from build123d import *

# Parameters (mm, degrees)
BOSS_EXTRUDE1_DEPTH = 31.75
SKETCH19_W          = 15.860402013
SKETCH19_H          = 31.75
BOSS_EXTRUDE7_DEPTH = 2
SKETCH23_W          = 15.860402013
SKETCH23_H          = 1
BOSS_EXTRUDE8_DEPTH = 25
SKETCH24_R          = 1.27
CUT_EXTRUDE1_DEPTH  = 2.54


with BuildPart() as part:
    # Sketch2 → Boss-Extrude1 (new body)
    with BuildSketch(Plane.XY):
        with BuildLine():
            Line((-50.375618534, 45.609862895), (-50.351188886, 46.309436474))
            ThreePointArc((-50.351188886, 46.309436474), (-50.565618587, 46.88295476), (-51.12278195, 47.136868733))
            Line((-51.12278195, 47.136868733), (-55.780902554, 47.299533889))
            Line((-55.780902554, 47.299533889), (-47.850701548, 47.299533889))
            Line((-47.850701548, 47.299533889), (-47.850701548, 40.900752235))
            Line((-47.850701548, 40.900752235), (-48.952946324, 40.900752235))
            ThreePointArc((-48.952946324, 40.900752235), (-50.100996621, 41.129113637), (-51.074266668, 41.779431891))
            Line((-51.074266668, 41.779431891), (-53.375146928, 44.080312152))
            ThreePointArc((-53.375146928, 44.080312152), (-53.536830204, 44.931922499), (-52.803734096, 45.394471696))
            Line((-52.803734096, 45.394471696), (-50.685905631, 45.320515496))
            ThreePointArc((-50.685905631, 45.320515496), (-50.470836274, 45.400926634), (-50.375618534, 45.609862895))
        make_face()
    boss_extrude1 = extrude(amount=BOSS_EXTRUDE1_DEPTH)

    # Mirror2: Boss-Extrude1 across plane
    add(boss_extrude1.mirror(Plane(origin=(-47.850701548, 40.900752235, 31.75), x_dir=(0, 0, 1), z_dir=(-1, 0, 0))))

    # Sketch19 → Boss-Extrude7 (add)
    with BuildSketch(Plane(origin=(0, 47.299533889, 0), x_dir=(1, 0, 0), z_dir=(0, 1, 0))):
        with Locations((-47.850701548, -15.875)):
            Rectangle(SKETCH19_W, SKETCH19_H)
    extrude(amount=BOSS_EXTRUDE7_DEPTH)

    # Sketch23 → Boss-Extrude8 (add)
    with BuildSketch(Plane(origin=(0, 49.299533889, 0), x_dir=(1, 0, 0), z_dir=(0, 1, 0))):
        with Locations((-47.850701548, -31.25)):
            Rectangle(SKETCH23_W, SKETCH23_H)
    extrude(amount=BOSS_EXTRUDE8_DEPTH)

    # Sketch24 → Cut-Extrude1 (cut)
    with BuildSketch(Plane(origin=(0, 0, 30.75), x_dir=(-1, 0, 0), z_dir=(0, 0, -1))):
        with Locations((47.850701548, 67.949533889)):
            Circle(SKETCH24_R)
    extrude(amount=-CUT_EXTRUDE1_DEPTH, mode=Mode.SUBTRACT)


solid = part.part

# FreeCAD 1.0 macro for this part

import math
import FreeCAD as App
import Part
import Sketcher

V = App.Vector
Q = App.Units.Quantity


def add_polygon(sketch, points):
    """Adds a closed chain of lines whose ends are joined by coincident constraints."""
    first, n = sketch.GeometryCount, len(points)
    for a, b in zip(points, points[1:] + points[:1]):
        sketch.addGeometry(Part.LineSegment(App.Vector(*a, 0), App.Vector(*b, 0)), False)
    for i in range(n):
        sketch.addConstraint(Sketcher.Constraint("Coincident", first + i, 2, first + (i + 1) % n, 1))

doc = App.newDocument("Part")
params = doc.addObject("Spreadsheet::Sheet", "Params")
for row, (alias, value) in enumerate([
    ("sketch1_radius", "3 mm"),
    ("sketch1_radius2", "0.3 mm"),
    ("sketch1_radius3", "0.8 mm"),
    ("sketch1_length", "0.7 mm"),
    ("pad1_length", "31.75 mm"),
    ("sketch2_height", "31.75 mm"),
    ("pad2_length", "2 mm"),
    ("sketch3_height", "1 mm"),
    ("pad3_length", "25 mm"),
    ("sketch4_diameter", "2.54 mm"),
    ("pocket1_length", "2.54 mm"),
], start=1):
    params.set(f"A{row}", alias)
    params.set(f"B{row}", "=" + value)
    params.setAlias(f"B{row}", alias)

body = doc.addObject("PartDesign::Body", "Body")

sketch1 = doc.addObject("Sketcher::SketchObject", "Sketch")
body.addObject(sketch1)
sketch1.AttachmentSupport = (doc.XY_Plane, [""])
sketch1.MapMode = "FlatFace"
sketch1.addGeometry(Part.LineSegment(V(-50.35, 46.31, 0), V(-50.38, 45.61, 0)), False)
sketch1.addGeometry(Part.ArcOfCircle(Part.Circle(V(-50.68, 45.62, 0), V(0, 0, 1), 0.3), math.radians(-92), math.radians(-2)), False)
sketch1.addGeometry(Part.LineSegment(V(-50.69, 45.32, 0), V(-52.8, 45.39, 0)), False)
sketch1.addGeometry(Part.ArcOfCircle(Part.Circle(V(-52.83, 44.62, 0), V(0, 0, 1), 0.77), math.radians(88), math.radians(225)), False)
sketch1.addGeometry(Part.LineSegment(V(-53.38, 44.08, 0), V(-51.07, 41.78, 0)), False)
sketch1.addGeometry(Part.ArcOfCircle(Part.Circle(V(-48.95, 43.9, 0), V(0, 0, 1), 3), math.radians(-135), math.radians(-90)), False)
sketch1.addGeometry(Part.LineSegment(V(-48.95, 40.9, 0), V(-47.85, 40.9, 0)), False)
sketch1.addGeometry(Part.LineSegment(V(-47.85, 40.9, 0), V(-47.85, 47.3, 0)), False)
sketch1.addGeometry(Part.LineSegment(V(-47.85, 47.3, 0), V(-55.78, 47.3, 0)), False)
sketch1.addGeometry(Part.LineSegment(V(-55.78, 47.3, 0), V(-51.12, 47.14, 0)), False)
sketch1.addGeometry(Part.ArcOfCircle(Part.Circle(V(-51.15, 46.34, 0), V(0, 0, 1), 0.8), math.radians(-2), math.radians(88)), False)
sketch1.addConstraint(Sketcher.Constraint("Tangent", 0, 2, 1, 2))
sketch1.addConstraint(Sketcher.Constraint("Tangent", 1, 1, 2, 1))
sketch1.addConstraint(Sketcher.Constraint("Tangent", 2, 2, 3, 1))
sketch1.addConstraint(Sketcher.Constraint("Tangent", 3, 2, 4, 1))
sketch1.addConstraint(Sketcher.Constraint("Tangent", 4, 2, 5, 1))
sketch1.addConstraint(Sketcher.Constraint("Tangent", 5, 2, 6, 1))
sketch1.addConstraint(Sketcher.Constraint("Coincident", 6, 2, 7, 1))
sketch1.addConstraint(Sketcher.Constraint("Coincident", 7, 2, 8, 1))
sketch1.addConstraint(Sketcher.Constraint("Coincident", 8, 2, 9, 1))
sketch1.addConstraint(Sketcher.Constraint("Tangent", 9, 2, 10, 2))
sketch1.addConstraint(Sketcher.Constraint("Tangent", 10, 1, 0, 1))
sketch1.addConstraint(Sketcher.Constraint("Horizontal", 6))
sketch1.addConstraint(Sketcher.Constraint("Vertical", 7))
sketch1.addConstraint(Sketcher.Constraint("Horizontal", 8))
sketch1.addConstraint(Sketcher.Constraint("Perpendicular", 0, 2))
sketch1.addConstraint(Sketcher.Constraint("Parallel", 2, 9))
sketch1.addConstraint(Sketcher.Constraint("Radius", 5, 3.0))
sketch1.addConstraint(Sketcher.Constraint("Radius", 1, 0.3))
sketch1.addConstraint(Sketcher.Constraint("Radius", 10, 0.8))
sketch1.addConstraint(Sketcher.Constraint("Angle", 0, Q("-92 deg")))
sketch1.addConstraint(Sketcher.Constraint("Angle", 4, Q("-45 deg")))
sketch1.addConstraint(Sketcher.Constraint("Distance", 0, 0.7))
sketch1.addConstraint(Sketcher.Constraint("DistanceX", 10, 3, 7, 2, 3.3))
sketch1.addConstraint(Sketcher.Constraint("Radius", 3, 0.770092))
sketch1.addConstraint(Sketcher.Constraint("DistanceX", 8, 2, 8, 1, 7.930201))
sketch1.addConstraint(Sketcher.Constraint("DistanceY", 7, 1, 7, 2, 6.398782))
sketch1.addConstraint(Sketcher.Constraint("DistanceX", 10, 3, -1, 1, 51.150702))
sketch1.addConstraint(Sketcher.Constraint("DistanceX", 2, 2, 1, 3, 2.128298))
sketch1.addConstraint(Sketcher.Constraint("DistanceY", -1, 1, 3, 3, 44.624849))
sketch1.setExpression("Constraints[16]", "Params.sketch1_radius")
sketch1.setExpression("Constraints[17]", "Params.sketch1_radius2")
sketch1.setExpression("Constraints[18]", "Params.sketch1_radius3")
sketch1.setExpression("Constraints[21]", "Params.sketch1_length")
pad1 = doc.addObject("PartDesign::Pad", "Pad")
body.addObject(pad1)
pad1.Profile = sketch1
pad1.setExpression("Length", "Params.pad1_length")
doc.recompute()

datumplane = doc.addObject("PartDesign::Plane", "DatumPlane")
body.addObject(datumplane)
datumplane.AttachmentSupport = (doc.YZ_Plane, [""])
datumplane.MapMode = "FlatFace"
datumplane.AttachmentOffset = App.Placement(V(0, 0, -47.850702), App.Rotation())
mirrored = doc.addObject("PartDesign::Mirrored", "Mirrored")
body.addObject(mirrored)
mirrored.Originals = [pad1]
mirrored.MirrorPlane = (datumplane, [""])
body.Tip = mirrored

sketch2 = doc.addObject("Sketcher::SketchObject", "Sketch001")
body.addObject(sketch2)
sketch2.AttachmentSupport = (doc.XZ_Plane, [""])
sketch2.MapMode = "FlatFace"
sketch2.AttachmentOffset = App.Placement(V(0, 0, -47.299534), App.Rotation())
add_polygon(sketch2, [(-56, 0), (-56, 32), (-40, 32), (-40, 0)])
sketch2.addConstraint(Sketcher.Constraint("Vertical", 0))
sketch2.addConstraint(Sketcher.Constraint("Horizontal", 1))
sketch2.addConstraint(Sketcher.Constraint("Vertical", 2))
sketch2.addConstraint(Sketcher.Constraint("Horizontal", 3))
sketch2.addConstraint(Sketcher.Constraint("PointOnObject", 2, 2, -1))
sketch2.addConstraint(Sketcher.Constraint("DistanceY", 0, 1, 0, 2, 31.75))
sketch2.addConstraint(Sketcher.Constraint("DistanceX", 1, 2, -1, 1, 39.920501))
sketch2.addConstraint(Sketcher.Constraint("DistanceX", 1, 1, 1, 2, 15.860402))
sketch2.setExpression("Constraints[9]", "Params.sketch2_height")
pad2 = doc.addObject("PartDesign::Pad", "Pad001")
body.addObject(pad2)
pad2.Profile = sketch2
pad2.setExpression("Length", "Params.pad2_length")
pad2.Reversed = True

sketch3 = doc.addObject("Sketcher::SketchObject", "Sketch002")
body.addObject(sketch3)
sketch3.AttachmentSupport = (doc.XZ_Plane, [""])
sketch3.MapMode = "FlatFace"
sketch3.AttachmentOffset = App.Placement(V(0, 0, -49.299534), App.Rotation())
add_polygon(sketch3, [(-55.8, 30.8), (-55.8, 31.8), (-39.9, 31.8), (-39.9, 30.8)])
sketch3.addConstraint(Sketcher.Constraint("Vertical", 0))
sketch3.addConstraint(Sketcher.Constraint("Horizontal", 1))
sketch3.addConstraint(Sketcher.Constraint("Vertical", 2))
sketch3.addConstraint(Sketcher.Constraint("Horizontal", 3))
sketch3.addConstraint(Sketcher.Constraint("DistanceY", 0, 1, 0, 2, 1.0))
sketch3.addConstraint(Sketcher.Constraint("DistanceY", -1, 1, 0, 2, 31.75))
sketch3.addConstraint(Sketcher.Constraint("DistanceX", 1, 2, -1, 1, 39.920501))
sketch3.addConstraint(Sketcher.Constraint("DistanceX", 1, 1, 1, 2, 15.860402))
sketch3.setExpression("Constraints[8]", "Params.sketch3_height")
pad3 = doc.addObject("PartDesign::Pad", "Pad002")
body.addObject(pad3)
pad3.Profile = sketch3
pad3.setExpression("Length", "Params.pad3_length")
pad3.Reversed = True

sketch4 = doc.addObject("Sketcher::SketchObject", "Sketch003")
body.addObject(sketch4)
sketch4.AttachmentSupport = (doc.XY_Plane, [""])
sketch4.MapMode = "FlatFace"
sketch4.AttachmentOffset = App.Placement(V(0, 0, 30.75), App.Rotation())
sketch4.addGeometry(Part.Circle(V(-47.9, 67.9, 0), V(0, 0, 1), 1.3), False)
sketch4.addConstraint(Sketcher.Constraint("Diameter", 0, 2.54))
sketch4.addConstraint(Sketcher.Constraint("DistanceX", 0, 3, -1, 1, 47.850702))
sketch4.addConstraint(Sketcher.Constraint("DistanceY", -1, 1, 0, 3, 67.949534))
sketch4.setExpression("Constraints[0]", "Params.sketch4_diameter")
pocket1 = doc.addObject("PartDesign::Pocket", "Pocket")
body.addObject(pocket1)
pocket1.Profile = sketch4
pocket1.setExpression("Length", "Params.pocket1_length")
pocket1.Reversed = True

doc.recompute()
